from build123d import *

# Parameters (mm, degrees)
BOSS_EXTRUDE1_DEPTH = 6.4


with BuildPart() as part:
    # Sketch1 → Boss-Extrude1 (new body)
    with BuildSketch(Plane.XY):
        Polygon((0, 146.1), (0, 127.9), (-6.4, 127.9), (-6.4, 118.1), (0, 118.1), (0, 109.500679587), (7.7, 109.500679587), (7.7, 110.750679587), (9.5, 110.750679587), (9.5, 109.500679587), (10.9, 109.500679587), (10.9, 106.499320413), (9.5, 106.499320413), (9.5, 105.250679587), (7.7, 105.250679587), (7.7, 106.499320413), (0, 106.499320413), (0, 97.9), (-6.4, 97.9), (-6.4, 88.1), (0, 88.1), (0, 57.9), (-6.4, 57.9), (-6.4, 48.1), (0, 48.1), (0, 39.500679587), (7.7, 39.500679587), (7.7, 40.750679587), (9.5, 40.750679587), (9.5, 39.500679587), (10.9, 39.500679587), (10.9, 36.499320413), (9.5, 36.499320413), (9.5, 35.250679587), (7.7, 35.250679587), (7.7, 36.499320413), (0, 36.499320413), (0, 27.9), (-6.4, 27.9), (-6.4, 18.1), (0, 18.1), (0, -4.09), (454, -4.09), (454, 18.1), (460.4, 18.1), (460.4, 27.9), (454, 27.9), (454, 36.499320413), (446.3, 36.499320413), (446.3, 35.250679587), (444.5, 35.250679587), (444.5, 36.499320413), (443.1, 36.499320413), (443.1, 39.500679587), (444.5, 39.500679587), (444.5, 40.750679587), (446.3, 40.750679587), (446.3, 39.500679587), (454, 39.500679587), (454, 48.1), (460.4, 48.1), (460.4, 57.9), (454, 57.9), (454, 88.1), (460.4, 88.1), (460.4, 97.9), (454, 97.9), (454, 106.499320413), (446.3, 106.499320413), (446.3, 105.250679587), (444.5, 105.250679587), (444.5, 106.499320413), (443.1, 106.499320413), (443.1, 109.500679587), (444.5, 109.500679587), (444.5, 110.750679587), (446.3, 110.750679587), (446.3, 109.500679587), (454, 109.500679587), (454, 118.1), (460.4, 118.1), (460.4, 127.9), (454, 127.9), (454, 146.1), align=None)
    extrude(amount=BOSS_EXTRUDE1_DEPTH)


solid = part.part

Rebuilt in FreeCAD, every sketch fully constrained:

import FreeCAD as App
import Part
import Sketcher

V = App.Vector

doc = App.newDocument("Part")
body = doc.addObject("PartDesign::Body", "Body")

# Sketch on XY plane
sketch1 = body.newObject("Sketcher::SketchObject", "Sketch")
sketch1.AttachmentSupport = (doc.getObject("XY_Plane"), [""])
sketch1.MapMode = "FlatFace"
sketch1.addGeometry(Part.LineSegment(V(0, 146.1, 0), V(0, 127.9, 0)), False)
sketch1.addGeometry(Part.LineSegment(V(0, 127.9, 0), V(-6.4, 127.9, 0)), False)
sketch1.addGeometry(Part.LineSegment(V(-6.4, 127.9, 0), V(-6.4, 118.1, 0)), False)
sketch1.addGeometry(Part.LineSegment(V(-6.4, 118.1, 0), V(0, 118.1, 0)), False)
sketch1.addGeometry(Part.LineSegment(V(0, 118.1, 0), V(0, 109.50068, 0)), False)
sketch1.addGeometry(Part.LineSegment(V(0, 109.50068, 0), V(7.7, 109.50068, 0)), False)
sketch1.addGeometry(Part.LineSegment(V(7.7, 109.50068, 0), V(7.7, 110.75068, 0)), False)
sketch1.addGeometry(Part.LineSegment(V(7.7, 110.75068, 0), V(9.5, 110.75068, 0)), False)
sketch1.addGeometry(Part.LineSegment(V(9.5, 110.75068, 0), V(9.5, 109.50068, 0)), False)
sketch1.addGeometry(Part.LineSegment(V(9.5, 109.50068, 0), V(10.9, 109.50068, 0)), False)
sketch1.addGeometry(Part.LineSegment(V(10.9, 109.50068, 0), V(10.9, 106.49932, 0)), False)
sketch1.addGeometry(Part.LineSegment(V(10.9, 106.49932, 0), V(9.5, 106.49932, 0)), False)
sketch1.addGeometry(Part.LineSegment(V(9.5, 106.49932, 0), V(9.5, 105.25068, 0)), False)
sketch1.addGeometry(Part.LineSegment(V(9.5, 105.25068, 0), V(7.7, 105.25068, 0)), False)
sketch1.addGeometry(Part.LineSegment(V(7.7, 105.25068, 0), V(7.7, 106.49932, 0)), False)
sketch1.addGeometry(Part.LineSegment(V(7.7, 106.49932, 0), V(0, 106.49932, 0)), False)
sketch1.addGeometry(Part.LineSegment(V(0, 106.49932, 0), V(0, 97.9, 0)), False)
sketch1.addGeometry(Part.LineSegment(V(0, 97.9, 0), V(-6.4, 97.9, 0)), False)
sketch1.addGeometry(Part.LineSegment(V(-6.4, 97.9, 0), V(-6.4, 88.1, 0)), False)
sketch1.addGeometry(Part.LineSegment(V(-6.4, 88.1, 0), V(0, 88.1, 0)), False)
sketch1.addGeometry(Part.LineSegment(V(0, 88.1, 0), V(0, 57.9, 0)), False)
sketch1.addGeometry(Part.LineSegment(V(0, 57.9, 0), V(-6.4, 57.9, 0)), False)
sketch1.addGeometry(Part.LineSegment(V(-6.4, 57.9, 0), V(-6.4, 48.1, 0)), False)
sketch1.addGeometry(Part.LineSegment(V(-6.4, 48.1, 0), V(0, 48.1, 0)), False)
sketch1.addGeometry(Part.LineSegment(V(0, 48.1, 0), V(0, 39.50068, 0)), False)
sketch1.addGeometry(Part.LineSegment(V(0, 39.50068, 0), V(7.7, 39.50068, 0)), False)
sketch1.addGeometry(Part.LineSegment(V(7.7, 39.50068, 0), V(7.7, 40.75068, 0)), False)
sketch1.addGeometry(Part.LineSegment(V(7.7, 40.75068, 0), V(9.5, 40.75068, 0)), False)
sketch1.addGeometry(Part.LineSegment(V(9.5, 40.75068, 0), V(9.5, 39.50068, 0)), False)
sketch1.addGeometry(Part.LineSegment(V(9.5, 39.50068, 0), V(10.9, 39.50068, 0)), False)
sketch1.addGeometry(Part.LineSegment(V(10.9, 39.50068, 0), V(10.9, 36.49932, 0)), False)
sketch1.addGeometry(Part.LineSegment(V(10.9, 36.49932, 0), V(9.5, 36.49932, 0)), False)
sketch1.addGeometry(Part.LineSegment(V(9.5, 36.49932, 0), V(9.5, 35.25068, 0)), False)
sketch1.addGeometry(Part.LineSegment(V(9.5, 35.25068, 0), V(7.7, 35.25068, 0)), False)
sketch1.addGeometry(Part.LineSegment(V(7.7, 35.25068, 0), V(7.7, 36.49932, 0)), False)
sketch1.addGeometry(Part.LineSegment(V(7.7, 36.49932, 0), V(0, 36.49932, 0)), False)
sketch1.addGeometry(Part.LineSegment(V(0, 36.49932, 0), V(0, 27.9, 0)), False)
sketch1.addGeometry(Part.LineSegment(V(0, 27.9, 0), V(-6.4, 27.9, 0)), False)
sketch1.addGeometry(Part.LineSegment(V(-6.4, 27.9, 0), V(-6.4, 18.1, 0)), False)
sketch1.addGeometry(Part.LineSegment(V(-6.4, 18.1, 0), V(0, 18.1, 0)), False)
sketch1.addGeometry(Part.LineSegment(V(0, 18.1, 0), V(0, -4.09, 0)), False)
sketch1.addGeometry(Part.LineSegment(V(0, -4.09, 0), V(454, -4.09, 0)), False)
sketch1.addGeometry(Part.LineSegment(V(454, -4.09, 0), V(454, 18.1, 0)), False)
sketch1.addGeometry(Part.LineSegment(V(454, 18.1, 0), V(460.4, 18.1, 0)), False)
sketch1.addGeometry(Part.LineSegment(V(460.4, 18.1, 0), V(460.4, 27.9, 0)), False)
sketch1.addGeometry(Part.LineSegment(V(460.4, 27.9, 0), V(454, 27.9, 0)), False)
sketch1.addGeometry(Part.LineSegment(V(454, 27.9, 0), V(454, 36.49932, 0)), False)
sketch1.addGeometry(Part.LineSegment(V(454, 36.49932, 0), V(446.3, 36.49932, 0)), False)
sketch1.addGeometry(Part.LineSegment(V(446.3, 36.49932, 0), V(446.3, 35.25068, 0)), False)
sketch1.addGeometry(Part.LineSegment(V(446.3, 35.25068, 0), V(444.5, 35.25068, 0)), False)
sketch1.addGeometry(Part.LineSegment(V(444.5, 35.25068, 0), V(444.5, 36.49932, 0)), False)
sketch1.addGeometry(Part.LineSegment(V(444.5, 36.49932, 0), V(443.1, 36.49932, 0)), False)
sketch1.addGeometry(Part.LineSegment(V(443.1, 36.49932, 0), V(443.1, 39.50068, 0)), False)
sketch1.addGeometry(Part.LineSegment(V(443.1, 39.50068, 0), V(444.5, 39.50068, 0)), False)
sketch1.addGeometry(Part.LineSegment(V(444.5, 39.50068, 0), V(444.5, 40.75068, 0)), False)
sketch1.addGeometry(Part.LineSegment(V(444.5, 40.75068, 0), V(446.3, 40.75068, 0)), False)
sketch1.addGeometry(Part.LineSegment(V(446.3, 40.75068, 0), V(446.3, 39.50068, 0)), False)
sketch1.addGeometry(Part.LineSegment(V(446.3, 39.50068, 0), V(454, 39.50068, 0)), False)
sketch1.addGeometry(Part.LineSegment(V(454, 39.50068, 0), V(454, 48.1, 0)), False)
sketch1.addGeometry(Part.LineSegment(V(454, 48.1, 0), V(460.4, 48.1, 0)), False)
sketch1.addGeometry(Part.LineSegment(V(460.4, 48.1, 0), V(460.4, 57.9, 0)), False)
sketch1.addGeometry(Part.LineSegment(V(460.4, 57.9, 0), V(454, 57.9, 0)), False)
sketch1.addGeometry(Part.LineSegment(V(454, 57.9, 0), V(454, 88.1, 0)), False)
sketch1.addGeometry(Part.LineSegment(V(454, 88.1, 0), V(460.4, 88.1, 0)), False)
sketch1.addGeometry(Part.LineSegment(V(460.4, 88.1, 0), V(460.4, 97.9, 0)), False)
sketch1.addGeometry(Part.LineSegment(V(460.4, 97.9, 0), V(454, 97.9, 0)), False)
sketch1.addGeometry(Part.LineSegment(V(454, 97.9, 0), V(454, 106.49932, 0)), False)
sketch1.addGeometry(Part.LineSegment(V(454, 106.49932, 0), V(446.3, 106.49932, 0)), False)
sketch1.addGeometry(Part.LineSegment(V(446.3, 106.49932, 0), V(446.3, 105.25068, 0)), False)
sketch1.addGeometry(Part.LineSegment(V(446.3, 105.25068, 0), V(444.5, 105.25068, 0)), False)
sketch1.addGeometry(Part.LineSegment(V(444.5, 105.25068, 0), V(444.5, 106.49932, 0)), False)
sketch1.addGeometry(Part.LineSegment(V(444.5, 106.49932, 0), V(443.1, 106.49932, 0)), False)
sketch1.addGeometry(Part.LineSegment(V(443.1, 106.49932, 0), V(443.1, 109.50068, 0)), False)
sketch1.addGeometry(Part.LineSegment(V(443.1, 109.50068, 0), V(444.5, 109.50068, 0)), False)
sketch1.addGeometry(Part.LineSegment(V(444.5, 109.50068, 0), V(444.5, 110.75068, 0)), False)
sketch1.addGeometry(Part.LineSegment(V(444.5, 110.75068, 0), V(446.3, 110.75068, 0)), False)
sketch1.addGeometry(Part.LineSegment(V(446.3, 110.75068, 0), V(446.3, 109.50068, 0)), False)
sketch1.addGeometry(Part.LineSegment(V(446.3, 109.50068, 0), V(454, 109.50068, 0)), False)
sketch1.addGeometry(Part.LineSegment(V(454, 109.50068, 0), V(454, 118.1, 0)), False)
sketch1.addGeometry(Part.LineSegment(V(454, 118.1, 0), V(460.4, 118.1, 0)), False)
sketch1.addGeometry(Part.LineSegment(V(460.4, 118.1, 0), V(460.4, 127.9, 0)), False)
sketch1.addGeometry(Part.LineSegment(V(460.4, 127.9, 0), V(454, 127.9, 0)), False)
sketch1.addGeometry(Part.LineSegment(V(454, 127.9, 0), V(454, 146.1, 0)), False)
sketch1.addGeometry(Part.LineSegment(V(454, 146.1, 0), V(0, 146.1, 0)), False)
sketch1.addConstraint(Sketcher.Constraint("Coincident", 0, 2, 1, 1))
sketch1.addConstraint(Sketcher.Constraint("Coincident", 1, 2, 2, 1))
sketch1.addConstraint(Sketcher.Constraint("Coincident", 2, 2, 3, 1))
sketch1.addConstraint(Sketcher.Constraint("Coincident", 3, 2, 4, 1))
sketch1.addConstraint(Sketcher.Constraint("Coincident", 4, 2, 5, 1))
sketch1.addConstraint(Sketcher.Constraint("Coincident", 5, 2, 6, 1))
sketch1.addConstraint(Sketcher.Constraint("Coincident", 6, 2, 7, 1))
sketch1.addConstraint(Sketcher.Constraint("Coincident", 7, 2, 8, 1))
sketch1.addConstraint(Sketcher.Constraint("Coincident", 8, 2, 9, 1))
sketch1.addConstraint(Sketcher.Constraint("Coincident", 9, 2, 10, 1))
sketch1.addConstraint(Sketcher.Constraint("Coincident", 10, 2, 11, 1))
sketch1.addConstraint(Sketcher.Constraint("Coincident", 11, 2, 12, 1))
sketch1.addConstraint(Sketcher.Constraint("Coincident", 12, 2, 13, 1))
sketch1.addConstraint(Sketcher.Constraint("Coincident", 13, 2, 14, 1))
sketch1.addConstraint(Sketcher.Constraint("Coincident", 14, 2, 15, 1))
sketch1.addConstraint(Sketcher.Constraint("Coincident", 15, 2, 16, 1))
sketch1.addConstraint(Sketcher.Constraint("Coincident", 16, 2, 17, 1))
sketch1.addConstraint(Sketcher.Constraint("Coincident", 17, 2, 18, 1))
sketch1.addConstraint(Sketcher.Constraint("Coincident", 18, 2, 19, 1))
sketch1.addConstraint(Sketcher.Constraint("Coincident", 19, 2, 20, 1))
sketch1.addConstraint(Sketcher.Constraint("Coincident", 20, 2, 21, 1))
sketch1.addConstraint(Sketcher.Constraint("Coincident", 21, 2, 22, 1))
sketch1.addConstraint(Sketcher.Constraint("Coincident", 22, 2, 23, 1))
sketch1.addConstraint(Sketcher.Constraint("Coincident", 23, 2, 24, 1))
sketch1.addConstraint(Sketcher.Constraint("Coincident", 24, 2, 25, 1))
sketch1.addConstraint(Sketcher.Constraint("Coincident", 25, 2, 26, 1))
sketch1.addConstraint(Sketcher.Constraint("Coincident", 26, 2, 27, 1))
sketch1.addConstraint(Sketcher.Constraint("Coincident", 27, 2, 28, 1))
sketch1.addConstraint(Sketcher.Constraint("Coincident", 28, 2, 29, 1))
sketch1.addConstraint(Sketcher.Constraint("Coincident", 29, 2, 30, 1))
sketch1.addConstraint(Sketcher.Constraint("Coincident", 30, 2, 31, 1))
sketch1.addConstraint(Sketcher.Constraint("Coincident", 31, 2, 32, 1))
sketch1.addConstraint(Sketcher.Constraint("Coincident", 32, 2, 33, 1))
sketch1.addConstraint(Sketcher.Constraint("Coincident", 33, 2, 34, 1))
sketch1.addConstraint(Sketcher.Constraint("Coincident", 34, 2, 35, 1))
sketch1.addConstraint(Sketcher.Constraint("Coincident", 35, 2, 36, 1))
sketch1.addConstraint(Sketcher.Constraint("Coincident", 36, 2, 37, 1))
sketch1.addConstraint(Sketcher.Constraint("Coincident", 37, 2, 38, 1))
sketch1.addConstraint(Sketcher.Constraint("Coincident", 38, 2, 39, 1))
sketch1.addConstraint(Sketcher.Constraint("Coincident", 39, 2, 40, 1))
sketch1.addConstraint(Sketcher.Constraint("Coincident", 40, 2, 41, 1))
sketch1.addConstraint(Sketcher.Constraint("Coincident", 41, 2, 42, 1))
sketch1.addConstraint(Sketcher.Constraint("Coincident", 42, 2, 43, 1))
sketch1.addConstraint(Sketcher.Constraint("Coincident", 43, 2, 44, 1))
sketch1.addConstraint(Sketcher.Constraint("Coincident", 44, 2, 45, 1))
sketch1.addConstraint(Sketcher.Constraint("Coincident", 45, 2, 46, 1))
sketch1.addConstraint(Sketcher.Constraint("Coincident", 46, 2, 47, 1))
sketch1.addConstraint(Sketcher.Constraint("Coincident", 47, 2, 48, 1))
sketch1.addConstraint(Sketcher.Constraint("Coincident", 48, 2, 49, 1))
sketch1.addConstraint(Sketcher.Constraint("Coincident", 49, 2, 50, 1))
sketch1.addConstraint(Sketcher.Constraint("Coincident", 50, 2, 51, 1))
sketch1.addConstraint(Sketcher.Constraint("Coincident", 51, 2, 52, 1))
sketch1.addConstraint(Sketcher.Constraint("Coincident", 52, 2, 53, 1))
sketch1.addConstraint(Sketcher.Constraint("Coincident", 53, 2, 54, 1))
sketch1.addConstraint(Sketcher.Constraint("Coincident", 54, 2, 55, 1))
sketch1.addConstraint(Sketcher.Constraint("Coincident", 55, 2, 56, 1))
sketch1.addConstraint(Sketcher.Constraint("Coincident", 56, 2, 57, 1))
sketch1.addConstraint(Sketcher.Constraint("Coincident", 57, 2, 58, 1))
sketch1.addConstraint(Sketcher.Constraint("Coincident", 58, 2, 59, 1))
sketch1.addConstraint(Sketcher.Constraint("Coincident", 59, 2, 60, 1))
sketch1.addConstraint(Sketcher.Constraint("Coincident", 60, 2, 61, 1))
sketch1.addConstraint(Sketcher.Constraint("Coincident", 61, 2, 62, 1))
sketch1.addConstraint(Sketcher.Constraint("Coincident", 62, 2, 63, 1))
sketch1.addConstraint(Sketcher.Constraint("Coincident", 63, 2, 64, 1))
sketch1.addConstraint(Sketcher.Constraint("Coincident", 64, 2, 65, 1))
sketch1.addConstraint(Sketcher.Constraint("Coincident", 65, 2, 66, 1))
sketch1.addConstraint(Sketcher.Constraint("Coincident", 66, 2, 67, 1))
sketch1.addConstraint(Sketcher.Constraint("Coincident", 67, 2, 68, 1))
sketch1.addConstraint(Sketcher.Constraint("Coincident", 68, 2, 69, 1))
sketch1.addConstraint(Sketcher.Constraint("Coincident", 69, 2, 70, 1))
sketch1.addConstraint(Sketcher.Constraint("Coincident", 70, 2, 71, 1))
sketch1.addConstraint(Sketcher.Constraint("Coincident", 71, 2, 72, 1))
sketch1.addConstraint(Sketcher.Constraint("Coincident", 72, 2, 73, 1))
sketch1.addConstraint(Sketcher.Constraint("Coincident", 73, 2, 74, 1))
sketch1.addConstraint(Sketcher.Constraint("Coincident", 74, 2, 75, 1))
sketch1.addConstraint(Sketcher.Constraint("Coincident", 75, 2, 76, 1))
sketch1.addConstraint(Sketcher.Constraint("Coincident", 76, 2, 77, 1))
sketch1.addConstraint(Sketcher.Constraint("Coincident", 77, 2, 78, 1))
sketch1.addConstraint(Sketcher.Constraint("Coincident", 78, 2, 79, 1))
sketch1.addConstraint(Sketcher.Constraint("Coincident", 79, 2, 80, 1))
sketch1.addConstraint(Sketcher.Constraint("Coincident", 80, 2, 81, 1))
sketch1.addConstraint(Sketcher.Constraint("Coincident", 81, 2, 82, 1))
sketch1.addConstraint(Sketcher.Constraint("Coincident", 82, 2, 83, 1))
sketch1.addConstraint(Sketcher.Constraint("Coincident", 83, 2, 0, 1))
sketch1.addConstraint(Sketcher.Constraint("Vertical", 0))
sketch1.addConstraint(Sketcher.Constraint("Horizontal", 1))
sketch1.addConstraint(Sketcher.Constraint("Vertical", 2))
sketch1.addConstraint(Sketcher.Constraint("Horizontal", 3))
sketch1.addConstraint(Sketcher.Constraint("Vertical", 4))
sketch1.addConstraint(Sketcher.Constraint("Horizontal", 5))
sketch1.addConstraint(Sketcher.Constraint("Vertical", 6))
sketch1.addConstraint(Sketcher.Constraint("Horizontal", 7))
sketch1.addConstraint(Sketcher.Constraint("Vertical", 8))
sketch1.addConstraint(Sketcher.Constraint("Horizontal", 9))
sketch1.addConstraint(Sketcher.Constraint("Vertical", 10))
sketch1.addConstraint(Sketcher.Constraint("Horizontal", 11))
sketch1.addConstraint(Sketcher.Constraint("Vertical", 12))
sketch1.addConstraint(Sketcher.Constraint("Horizontal", 13))
sketch1.addConstraint(Sketcher.Constraint("Vertical", 14))
sketch1.addConstraint(Sketcher.Constraint("Horizontal", 15))
sketch1.addConstraint(Sketcher.Constraint("Vertical", 16))
sketch1.addConstraint(Sketcher.Constraint("Horizontal", 17))
sketch1.addConstraint(Sketcher.Constraint("Vertical", 18))
sketch1.addConstraint(Sketcher.Constraint("Horizontal", 19))
sketch1.addConstraint(Sketcher.Constraint("Vertical", 20))
sketch1.addConstraint(Sketcher.Constraint("Horizontal", 21))
sketch1.addConstraint(Sketcher.Constraint("Vertical", 22))
sketch1.addConstraint(Sketcher.Constraint("Horizontal", 23))
sketch1.addConstraint(Sketcher.Constraint("Vertical", 24))
sketch1.addConstraint(Sketcher.Constraint("Horizontal", 25))
sketch1.addConstraint(Sketcher.Constraint("Vertical", 26))
sketch1.addConstraint(Sketcher.Constraint("Horizontal", 27))
sketch1.addConstraint(Sketcher.Constraint("Vertical", 28))
sketch1.addConstraint(Sketcher.Constraint("Horizontal", 29))
sketch1.addConstraint(Sketcher.Constraint("Vertical", 30))
sketch1.addConstraint(Sketcher.Constraint("Horizontal", 31))
sketch1.addConstraint(Sketcher.Constraint("Vertical", 32))
sketch1.addConstraint(Sketcher.Constraint("Horizontal", 33))
sketch1.addConstraint(Sketcher.Constraint("Vertical", 34))
sketch1.addConstraint(Sketcher.Constraint("Horizontal", 35))
sketch1.addConstraint(Sketcher.Constraint("Vertical", 36))
sketch1.addConstraint(Sketcher.Constraint("Horizontal", 37))
sketch1.addConstraint(Sketcher.Constraint("Vertical", 38))
sketch1.addConstraint(Sketcher.Constraint("Horizontal", 39))
sketch1.addConstraint(Sketcher.Constraint("Vertical", 40))
sketch1.addConstraint(Sketcher.Constraint("Horizontal", 41))
sketch1.addConstraint(Sketcher.Constraint("Vertical", 42))
sketch1.addConstraint(Sketcher.Constraint("Horizontal", 43))
sketch1.addConstraint(Sketcher.Constraint("Vertical", 44))
sketch1.addConstraint(Sketcher.Constraint("Horizontal", 45))
sketch1.addConstraint(Sketcher.Constraint("Vertical", 46))
sketch1.addConstraint(Sketcher.Constraint("Horizontal", 47))
sketch1.addConstraint(Sketcher.Constraint("Vertical", 48))
sketch1.addConstraint(Sketcher.Constraint("Horizontal", 49))
sketch1.addConstraint(Sketcher.Constraint("Vertical", 50))
sketch1.addConstraint(Sketcher.Constraint("Horizontal", 51))
sketch1.addConstraint(Sketcher.Constraint("Vertical", 52))
sketch1.addConstraint(Sketcher.Constraint("Horizontal", 53))
sketch1.addConstraint(Sketcher.Constraint("Vertical", 54))
sketch1.addConstraint(Sketcher.Constraint("Horizontal", 55))
sketch1.addConstraint(Sketcher.Constraint("Vertical", 56))
sketch1.addConstraint(Sketcher.Constraint("Horizontal", 57))
sketch1.addConstraint(Sketcher.Constraint("Vertical", 58))
sketch1.addConstraint(Sketcher.Constraint("Horizontal", 59))
sketch1.addConstraint(Sketcher.Constraint("Vertical", 60))
sketch1.addConstraint(Sketcher.Constraint("Horizontal", 61))
sketch1.addConstraint(Sketcher.Constraint("Vertical", 62))
sketch1.addConstraint(Sketcher.Constraint("Horizontal", 63))
sketch1.addConstraint(Sketcher.Constraint("Vertical", 64))
sketch1.addConstraint(Sketcher.Constraint("Horizontal", 65))
sketch1.addConstraint(Sketcher.Constraint("Vertical", 66))
sketch1.addConstraint(Sketcher.Constraint("Horizontal", 67))
sketch1.addConstraint(Sketcher.Constraint("Vertical", 68))
sketch1.addConstraint(Sketcher.Constraint("Horizontal", 69))
sketch1.addConstraint(Sketcher.Constraint("Vertical", 70))
sketch1.addConstraint(Sketcher.Constraint("Horizontal", 71))
sketch1.addConstraint(Sketcher.Constraint("Vertical", 72))
sketch1.addConstraint(Sketcher.Constraint("Horizontal", 73))
sketch1.addConstraint(Sketcher.Constraint("Vertical", 74))
sketch1.addConstraint(Sketcher.Constraint("Horizontal", 75))
sketch1.addConstraint(Sketcher.Constraint("Vertical", 76))
sketch1.addConstraint(Sketcher.Constraint("Horizontal", 77))
sketch1.addConstraint(Sketcher.Constraint("Vertical", 78))
sketch1.addConstraint(Sketcher.Constraint("Horizontal", 79))
sketch1.addConstraint(Sketcher.Constraint("Vertical", 80))
sketch1.addConstraint(Sketcher.Constraint("Horizontal", 81))
sketch1.addConstraint(Sketcher.Constraint("Vertical", 82))
sketch1.addConstraint(Sketcher.Constraint("Horizontal", 83))
sketch1.addConstraint(Sketcher.Constraint("PointOnObject", 0, 2, -2))
sketch1.addConstraint(Sketcher.Constraint("PointOnObject", 3, 2, -2))
sketch1.addConstraint(Sketcher.Constraint("PointOnObject", 15, 2, -2))
sketch1.addConstraint(Sketcher.Constraint("PointOnObject", 19, 2, -2))
sketch1.addConstraint(Sketcher.Constraint("PointOnObject", 23, 2, -2))
sketch1.addConstraint(Sketcher.Constraint("PointOnObject", 35, 2, -2))
sketch1.addConstraint(Sketcher.Constraint("PointOnObject", 39, 2, -2))
sketch1.addConstraint(Sketcher.Constraint("Horizontal", 5, 2, 8, 2))
sketch1.addConstraint(Sketcher.Constraint("Horizontal", 11, 2, 14, 2))
sketch1.addConstraint(Sketcher.Constraint("Horizontal", 25, 2, 28, 2))
sketch1.addConstraint(Sketcher.Constraint("Horizontal", 31, 2, 34, 2))
sketch1.addConstraint(Sketcher.Constraint("Horizontal", 39, 2, 42, 2))
sketch1.addConstraint(Sketcher.Constraint("Horizontal", 37, 2, 44, 2))
sketch1.addConstraint(Sketcher.Constraint("Horizontal", 35, 2, 46, 2))
sketch1.addConstraint(Sketcher.Constraint("Horizontal", 33, 2, 48, 2))
sketch1.addConstraint(Sketcher.Constraint("Horizontal", 47, 2, 50, 2))
sketch1.addConstraint(Sketcher.Constraint("Horizontal", 29, 2, 52, 2))
sketch1.addConstraint(Sketcher.Constraint("Horizontal", 27, 2, 54, 2))
sketch1.addConstraint(Sketcher.Constraint("Horizontal", 53, 2, 56, 2))
sketch1.addConstraint(Sketcher.Constraint("Horizontal", 23, 2, 58, 2))
sketch1.addConstraint(Sketcher.Constraint("Horizontal", 21, 2, 60, 2))
sketch1.addConstraint(Sketcher.Constraint("Horizontal", 19, 2, 62, 2))
sketch1.addConstraint(Sketcher.Constraint("Horizontal", 17, 2, 64, 2))
sketch1.addConstraint(Sketcher.Constraint("Horizontal", 15, 2, 66, 2))
sketch1.addConstraint(Sketcher.Constraint("Horizontal", 13, 2, 68, 2))
sketch1.addConstraint(Sketcher.Constraint("Horizontal", 67, 2, 70, 2))
sketch1.addConstraint(Sketcher.Constraint("Horizontal", 9, 2, 72, 2))
sketch1.addConstraint(Sketcher.Constraint("Horizontal", 7, 2, 74, 2))
sketch1.addConstraint(Sketcher.Constraint("Horizontal", 73, 2, 76, 2))
sketch1.addConstraint(Sketcher.Constraint("Horizontal", 3, 2, 78, 2))
sketch1.addConstraint(Sketcher.Constraint("Horizontal", 1, 2, 80, 2))
sketch1.addConstraint(Sketcher.Constraint("Vertical", 8, 2, 11, 2))
sketch1.addConstraint(Sketcher.Constraint("Vertical", 6, 2, 13, 2))
sketch1.addConstraint(Sketcher.Constraint("Vertical", 2, 2, 17, 2))
sketch1.addConstraint(Sketcher.Constraint("Vertical", 18, 2, 21, 2))
sketch1.addConstraint(Sketcher.Constraint("Vertical", 14, 2, 25, 2))
sketch1.addConstraint(Sketcher.Constraint("Vertical", 12, 2, 27, 2))
sketch1.addConstraint(Sketcher.Constraint("Vertical", 10, 2, 29, 2))
sketch1.addConstraint(Sketcher.Constraint("Vertical", 28, 2, 31, 2))
sketch1.addConstraint(Sketcher.Constraint("Vertical", 26, 2, 33, 2))
sketch1.addConstraint(Sketcher.Constraint("Vertical", 22, 2, 37, 2))
sketch1.addConstraint(Sketcher.Constraint("Vertical", 42, 2, 45, 2))
sketch1.addConstraint(Sketcher.Constraint("Vertical", 50, 2, 53, 2))
sketch1.addConstraint(Sketcher.Constraint("Vertical", 48, 2, 55, 2))
sketch1.addConstraint(Sketcher.Constraint("Vertical", 46, 2, 57, 2))
sketch1.addConstraint(Sketcher.Constraint("Vertical", 44, 2, 59, 2))
sketch1.addConstraint(Sketcher.Constraint("Vertical", 58, 2, 61, 2))
sketch1.addConstraint(Sketcher.Constraint("Vertical", 60, 2, 63, 2))
sketch1.addConstraint(Sketcher.Constraint("Vertical", 62, 2, 65, 2))
sketch1.addConstraint(Sketcher.Constraint("Vertical", 56, 2, 67, 2))
sketch1.addConstraint(Sketcher.Constraint("Vertical", 54, 2, 69, 2))
sketch1.addConstraint(Sketcher.Constraint("Vertical", 52, 2, 71, 2))
sketch1.addConstraint(Sketcher.Constraint("Vertical", 70, 2, 73, 2))
sketch1.addConstraint(Sketcher.Constraint("Vertical", 68, 2, 75, 2))
sketch1.addConstraint(Sketcher.Constraint("Vertical", 66, 2, 77, 2))
sketch1.addConstraint(Sketcher.Constraint("Vertical", 64, 2, 79, 2))
sketch1.addConstraint(Sketcher.Constraint("Vertical", 78, 2, 81, 2))
sketch1.addConstraint(Sketcher.Constraint("Equal", 39, 43))
sketch1.addConstraint(Sketcher.Constraint("Equal", 35, 47))
sketch1.addConstraint(Sketcher.Constraint("Equal", 33, 49))
sketch1.addConstraint(Sketcher.Constraint("Equal", 31, 51))
sketch1.addConstraint(Sketcher.Constraint("Equal", 4, 16))
sketch1.addConstraint(Sketcher.Constraint("Equal", 2, 18))
sketch1.addConstraint(Sketcher.Constraint("Equal", 18, 22))
sketch1.addConstraint(Sketcher.Constraint("Equal", 16, 24))
sketch1.addConstraint(Sketcher.Constraint("Equal", 8, 26))
sketch1.addConstraint(Sketcher.Constraint("Equal", 10, 30))
sketch1.addConstraint(Sketcher.Constraint("Equal", 14, 32))
sketch1.addConstraint(Sketcher.Constraint("Equal", 24, 36))
sketch1.addConstraint(Sketcher.Constraint("Equal", 22, 38))
sketch1.addConstraint(Sketcher.Constraint("DistanceX", 41, 1, 41, 2, 454.0))
sketch1.addConstraint(Sketcher.Constraint("DistanceX", 1, 2, 1, 1, 6.4))
sketch1.addConstraint(Sketcher.Constraint("DistanceX", 5, 1, 5, 2, 7.7))
sketch1.addConstraint(Sketcher.Constraint("DistanceX", 7, 1, 7, 2, 1.8))
sketch1.addConstraint(Sketcher.Constraint("DistanceX", 9, 1, 9, 2, 1.4))
sketch1.addConstraint(Sketcher.Constraint("DistanceY", 0, 2, 0, 1, 18.2))
sketch1.addConstraint(Sketcher.Constraint("DistanceY", 2, 2, 2, 1, 9.8))
sketch1.addConstraint(Sketcher.Constraint("DistanceY", 20, 2, 20, 1, 30.2))
sketch1.addConstraint(Sketcher.Constraint("DistanceY", 6, 1, 6, 2, 1.25))
sketch1.addConstraint(Sketcher.Constraint("DistanceY", 40, 2, 40, 1, 22.19))
sketch1.addConstraint(Sketcher.Constraint("DistanceY", -1, 1, 0, 2, 127.9))
sketch1.addConstraint(Sketcher.Constraint("DistanceY", -1, 1, 16, 2, 97.9))
sketch1.addConstraint(Sketcher.Constraint("DistanceY", 4, 2, 4, 1, 8.59932))
sketch1.addConstraint(Sketcher.Constraint("DistanceY", 12, 2, 12, 1, 1.248641))
pad1 = body.newObject("PartDesign::Pad", "Pad")
pad1.Profile = sketch1
pad1.Length = 6.4

doc.recompute()
